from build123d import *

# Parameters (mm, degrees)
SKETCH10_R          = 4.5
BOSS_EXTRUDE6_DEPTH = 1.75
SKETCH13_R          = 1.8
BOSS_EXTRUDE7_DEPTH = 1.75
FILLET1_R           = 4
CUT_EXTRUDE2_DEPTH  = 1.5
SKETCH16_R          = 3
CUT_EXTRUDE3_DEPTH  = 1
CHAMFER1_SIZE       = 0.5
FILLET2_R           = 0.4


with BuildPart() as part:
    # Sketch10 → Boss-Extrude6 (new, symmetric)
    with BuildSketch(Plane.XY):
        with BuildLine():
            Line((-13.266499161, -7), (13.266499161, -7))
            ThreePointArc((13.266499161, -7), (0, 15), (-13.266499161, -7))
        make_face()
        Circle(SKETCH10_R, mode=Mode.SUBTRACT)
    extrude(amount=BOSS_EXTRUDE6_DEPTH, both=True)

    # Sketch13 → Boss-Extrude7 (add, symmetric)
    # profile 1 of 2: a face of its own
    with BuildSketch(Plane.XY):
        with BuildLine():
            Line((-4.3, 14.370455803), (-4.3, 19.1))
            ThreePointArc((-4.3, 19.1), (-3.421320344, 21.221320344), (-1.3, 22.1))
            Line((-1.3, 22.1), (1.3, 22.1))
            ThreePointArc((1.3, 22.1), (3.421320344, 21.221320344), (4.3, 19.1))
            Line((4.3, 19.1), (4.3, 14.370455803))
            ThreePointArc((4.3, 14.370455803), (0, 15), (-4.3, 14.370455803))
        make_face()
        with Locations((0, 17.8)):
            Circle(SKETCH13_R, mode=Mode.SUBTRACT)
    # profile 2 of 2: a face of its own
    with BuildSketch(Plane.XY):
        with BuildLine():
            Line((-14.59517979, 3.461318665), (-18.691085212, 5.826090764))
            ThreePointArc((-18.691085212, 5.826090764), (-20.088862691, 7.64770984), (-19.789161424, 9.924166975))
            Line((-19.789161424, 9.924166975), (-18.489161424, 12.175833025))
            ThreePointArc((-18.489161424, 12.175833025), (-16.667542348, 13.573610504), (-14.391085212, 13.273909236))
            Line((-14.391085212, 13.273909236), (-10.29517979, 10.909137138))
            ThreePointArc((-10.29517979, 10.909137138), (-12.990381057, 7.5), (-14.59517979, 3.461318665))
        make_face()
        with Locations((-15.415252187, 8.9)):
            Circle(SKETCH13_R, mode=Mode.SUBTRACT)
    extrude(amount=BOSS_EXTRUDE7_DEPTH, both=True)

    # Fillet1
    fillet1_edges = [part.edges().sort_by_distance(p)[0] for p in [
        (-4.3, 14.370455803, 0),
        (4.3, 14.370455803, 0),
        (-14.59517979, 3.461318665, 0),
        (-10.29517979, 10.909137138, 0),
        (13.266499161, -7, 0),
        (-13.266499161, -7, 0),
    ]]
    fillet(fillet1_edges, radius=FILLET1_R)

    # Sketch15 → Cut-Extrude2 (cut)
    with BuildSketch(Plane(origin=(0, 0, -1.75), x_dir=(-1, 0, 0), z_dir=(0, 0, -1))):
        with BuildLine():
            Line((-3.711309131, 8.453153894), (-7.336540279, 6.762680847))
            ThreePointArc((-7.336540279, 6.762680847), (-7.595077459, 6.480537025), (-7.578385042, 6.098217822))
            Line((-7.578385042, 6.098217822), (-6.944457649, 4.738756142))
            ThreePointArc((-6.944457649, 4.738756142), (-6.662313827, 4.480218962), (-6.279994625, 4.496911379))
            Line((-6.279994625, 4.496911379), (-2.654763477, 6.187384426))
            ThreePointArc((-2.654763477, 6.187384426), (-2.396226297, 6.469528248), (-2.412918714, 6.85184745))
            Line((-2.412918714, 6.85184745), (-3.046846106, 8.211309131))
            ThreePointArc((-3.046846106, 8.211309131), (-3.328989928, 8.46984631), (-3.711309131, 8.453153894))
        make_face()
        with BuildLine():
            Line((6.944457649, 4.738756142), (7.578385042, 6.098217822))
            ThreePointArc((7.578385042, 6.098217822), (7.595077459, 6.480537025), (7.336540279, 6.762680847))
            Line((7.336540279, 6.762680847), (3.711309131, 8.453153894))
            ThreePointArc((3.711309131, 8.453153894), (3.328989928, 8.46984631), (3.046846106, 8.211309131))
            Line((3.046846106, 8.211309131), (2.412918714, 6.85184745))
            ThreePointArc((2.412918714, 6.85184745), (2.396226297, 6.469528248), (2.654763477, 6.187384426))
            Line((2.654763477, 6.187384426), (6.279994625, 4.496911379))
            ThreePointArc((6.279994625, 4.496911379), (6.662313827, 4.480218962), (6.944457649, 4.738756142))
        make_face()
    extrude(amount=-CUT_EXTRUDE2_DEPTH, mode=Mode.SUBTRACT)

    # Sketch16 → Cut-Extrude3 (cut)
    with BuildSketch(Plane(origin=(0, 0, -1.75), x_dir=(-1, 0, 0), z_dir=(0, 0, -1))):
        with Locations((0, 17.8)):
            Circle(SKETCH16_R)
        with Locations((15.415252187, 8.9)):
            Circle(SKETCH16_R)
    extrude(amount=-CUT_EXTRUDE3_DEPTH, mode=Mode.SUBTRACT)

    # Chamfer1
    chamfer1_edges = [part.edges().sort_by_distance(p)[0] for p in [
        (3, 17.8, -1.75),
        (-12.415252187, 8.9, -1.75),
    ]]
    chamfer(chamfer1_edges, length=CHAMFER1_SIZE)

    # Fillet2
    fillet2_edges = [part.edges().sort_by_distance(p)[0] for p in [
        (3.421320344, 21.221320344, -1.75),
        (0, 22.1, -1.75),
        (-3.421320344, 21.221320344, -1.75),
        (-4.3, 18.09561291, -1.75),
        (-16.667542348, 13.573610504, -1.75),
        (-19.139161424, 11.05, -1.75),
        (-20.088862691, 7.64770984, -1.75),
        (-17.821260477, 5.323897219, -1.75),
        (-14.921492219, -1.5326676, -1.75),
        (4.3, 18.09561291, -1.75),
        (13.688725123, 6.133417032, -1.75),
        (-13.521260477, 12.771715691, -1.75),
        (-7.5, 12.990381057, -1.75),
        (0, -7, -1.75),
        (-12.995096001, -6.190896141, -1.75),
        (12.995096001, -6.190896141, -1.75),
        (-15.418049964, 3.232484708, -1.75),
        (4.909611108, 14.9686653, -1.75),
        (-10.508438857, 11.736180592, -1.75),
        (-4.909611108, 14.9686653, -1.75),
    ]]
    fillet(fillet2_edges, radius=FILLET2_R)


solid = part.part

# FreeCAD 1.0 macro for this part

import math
import FreeCAD as App
import Part
import Sketcher
Q = App.Units.Quantity


def edges_at(feature, points):
    """Names of the edges that pass closest to the given points."""
    edges = feature.Shape.Edges
    near = lambda p: min(range(len(edges)), key=lambda i: edges[i].distToShape(Part.Vertex(*p))[0])
    return sorted({f"Edge{near(p) + 1}" for p in points})

doc = App.newDocument("Part")
params = doc.addObject("Spreadsheet::Sheet", "Params")
for row, (alias, value) in enumerate([
    ("sketch1_diameter", "9 mm"),
    ("sketch1_radius", "15 mm"),
    ("pad1_length", "3.5 mm"),
    ("sketch2_radius", "15 mm"),
    ("sketch2_radius2", "3 mm"),
    ("sketch2_diameter", "3.6 mm"),
    ("sketch2_width", "2.6 mm"),
    ("sketch2_length", "2.6 mm"),
    ("pad2_length", "3.5 mm"),
    ("fillet_radius", "4 mm"),
    ("sketch3_radius", "0.5 mm"),
    ("sketch3_length", "4 mm"),
    ("sketch3_length2", "1.5 mm"),
    ("pocket1_length", "1.5 mm"),
    ("sketch4_diameter", "6 mm"),
    ("pocket2_length", "1 mm"),
    ("chamfer_size", "0.5 mm"),
    ("fillet2_radius", "0.4 mm"),
], start=1):
    params.set(f"A{row}", alias)
    params.set(f"B{row}", "=" + value)
    params.setAlias(f"B{row}", alias)

body = doc.addObject("PartDesign::Body", "Body")

sketch1 = body.newObject("Sketcher::SketchObject", "Sketch")
sketch1.AttachmentSupport = (doc.getObject("XY_Plane"), [""])
sketch1.MapMode = "FlatFace"
sketch1.addGeometry([
    Part.LineSegment(App.Vector(-13.3, -7, 0), App.Vector(13.3, -7, 0)),
    Part.ArcOfCircle(Part.Circle(App.Vector(0, 0, 0), App.Vector(0, 0, 1), 15), math.radians(-28), math.radians(208)),
    Part.Circle(App.Vector(0, 0, 0), App.Vector(0, 0, 1), 4.5),
], False)
sketch1.addConstraint([
    Sketcher.Constraint("Coincident", 0, 1, 1, 2),
    Sketcher.Constraint("Coincident", 1, 1, 0, 2),
    Sketcher.Constraint("Horizontal", 0),
    Sketcher.Constraint("Coincident", 1, 3, -1, 1),
    Sketcher.Constraint("Coincident", 2, 3, -1, 1),
    Sketcher.Constraint("Diameter", 2, Q("9 mm")),
    Sketcher.Constraint("Radius", 1, Q("15 mm")),
    Sketcher.Constraint("DistanceY", 0, 1, -1, 1, Q("7 mm")),
])
sketch1.setExpression("Constraints[5]", "Params.sketch1_diameter")
sketch1.setExpression("Constraints[6]", "Params.sketch1_radius")
pad1 = body.newObject("PartDesign::Pad", "Pad")
pad1.Profile = sketch1
pad1.setExpression("Length", "Params.pad1_length")
pad1.Midplane = True

sketch2 = body.newObject("Sketcher::SketchObject", "Sketch001")
sketch2.AttachmentSupport = (doc.getObject("XY_Plane"), [""])
sketch2.MapMode = "FlatFace"
sketch2.addGeometry([
    Part.LineSegment(App.Vector(-4.3, 19.1, 0), App.Vector(-4.3, 14.4, 0)),
    Part.ArcOfCircle(Part.Circle(App.Vector(0, 0, 0), App.Vector(0, 0, 1), 15), math.radians(73), math.radians(107)),
    Part.LineSegment(App.Vector(4.3, 14.4, 0), App.Vector(4.3, 19.1, 0)),
    Part.ArcOfCircle(Part.Circle(App.Vector(1.3, 19.1, 0), App.Vector(0, 0, 1), 3), math.radians(0), math.radians(90)),
    Part.LineSegment(App.Vector(1.3, 22.1, 0), App.Vector(-1.3, 22.1, 0)),
    Part.ArcOfCircle(Part.Circle(App.Vector(-1.3, 19.1, 0), App.Vector(0, 0, 1), 3), math.radians(90), math.radians(180)),
    Part.Circle(App.Vector(0, 17.8, 0), App.Vector(0, 0, 1), 1.8),
    Part.LineSegment(App.Vector(-18.7, 5.8, 0), App.Vector(-14.6, 3.5, 0)),
    Part.ArcOfCircle(Part.Circle(App.Vector(0, 0, 0), App.Vector(0, 0, 1), 15), math.radians(133), math.radians(167)),
    Part.LineSegment(App.Vector(-10.3, 10.9, 0), App.Vector(-14.4, 13.3, 0)),
    Part.ArcOfCircle(Part.Circle(App.Vector(-15.9, 10.7, 0), App.Vector(0, 0, 1), 3), math.radians(60), math.radians(150)),
    Part.LineSegment(App.Vector(-18.5, 12.2, 0), App.Vector(-19.8, 9.9, 0)),
    Part.ArcOfCircle(Part.Circle(App.Vector(-17.2, 8.4, 0), App.Vector(0, 0, 1), 3), math.radians(150), math.radians(240)),
    Part.Circle(App.Vector(-15.4, 8.9, 0), App.Vector(0, 0, 1), 1.8),
], False)
sketch2.addConstraint([
    Sketcher.Constraint("Coincident", 0, 2, 1, 2),
    Sketcher.Constraint("Coincident", 1, 1, 2, 1),
    Sketcher.Constraint("Tangent", 2, 2, 3, 1),
    Sketcher.Constraint("Tangent", 3, 2, 4, 1),
    Sketcher.Constraint("Tangent", 4, 2, 5, 1),
    Sketcher.Constraint("Tangent", 5, 2, 0, 1),
    Sketcher.Constraint("Coincident", 7, 2, 8, 2),
    Sketcher.Constraint("Coincident", 8, 1, 9, 1),
    Sketcher.Constraint("Tangent", 9, 2, 10, 1),
    Sketcher.Constraint("Tangent", 10, 2, 11, 1),
    Sketcher.Constraint("Tangent", 11, 2, 12, 1),
    Sketcher.Constraint("Tangent", 12, 2, 7, 1),
    Sketcher.Constraint("Vertical", 0),
    Sketcher.Constraint("Vertical", 2),
    Sketcher.Constraint("Horizontal", 4),
    Sketcher.Constraint("Coincident", 1, 3, -1, 1),
    Sketcher.Constraint("Coincident", 8, 3, -1, 1),
    Sketcher.Constraint("Equal", 3, 5),
    Sketcher.Constraint("Equal", 1, 8),
    Sketcher.Constraint("Equal", 5, 10),
    Sketcher.Constraint("Equal", 10, 12),
    Sketcher.Constraint("Equal", 6, 13),
    Sketcher.Constraint("PointOnObject", 6, 3, -2),
    Sketcher.Constraint("Parallel", 7, 9),
    Sketcher.Constraint("Perpendicular", 9, 11),
    Sketcher.Constraint("Horizontal", 0, 2, 1, 1),
    Sketcher.Constraint("Equal", 7, 9),
    Sketcher.Constraint("Radius", 1, Q("15 mm")),
    Sketcher.Constraint("Radius", 3, Q("3 mm")),
    Sketcher.Constraint("Diameter", 6, Q("3.6 mm")),
    Sketcher.Constraint("Angle", 7, Q("-30 deg")),
    Sketcher.Constraint("DistanceX", 4, 2, 4, 1, Q("2.6 mm")),
    Sketcher.Constraint("Distance", 11, Q("2.6 mm")),
    Sketcher.Constraint("DistanceY", -1, 1, 3, 3, Q("19.1 mm")),
    Sketcher.Constraint("DistanceY", -1, 1, 6, 3, Q("17.8 mm")),
    Sketcher.Constraint("DistanceY", -1, 1, 13, 3, Q("8.9 mm")),
    Sketcher.Constraint("DistanceY", -1, 1, 9, 2, Q("13.273909 mm")),
    Sketcher.Constraint("DistanceX", 10, 2, 13, 3, Q("3.073909 mm")),
])
sketch2.setExpression("Constraints[27]", "Params.sketch2_radius")
sketch2.setExpression("Constraints[28]", "Params.sketch2_radius2")
sketch2.setExpression("Constraints[29]", "Params.sketch2_diameter")
sketch2.setExpression("Constraints[31]", "Params.sketch2_width")
sketch2.setExpression("Constraints[32]", "Params.sketch2_length")
pad2 = body.newObject("PartDesign::Pad", "Pad001")
pad2.Profile = sketch2
pad2.setExpression("Length", "Params.pad2_length")
pad2.Midplane = True
doc.recompute()

fillet = body.newObject("PartDesign::Fillet", "Fillet")
fillet.Base = (pad2, edges_at(pad2, [
    (-4.3, 14.37, 0),
    (4.3, 14.37, 0),
    (-14.595, 3.461, 0),
    (-10.295, 10.909, 0),
    (13.266, -7, 0),
    (-13.266, -7, 0),
]))
fillet.setExpression("Radius", "Params.fillet_radius")

sketch3 = body.newObject("Sketcher::SketchObject", "Sketch002")
sketch3.AttachmentSupport = (doc.getObject("XY_Plane"), [""])
sketch3.MapMode = "FlatFace"
sketch3.AttachmentOffset = App.Placement(App.Vector(0, 0, -1.75), App.Rotation())
sketch3.addGeometry([
    Part.LineSegment(App.Vector(3.71, 8.45, 0), App.Vector(7.34, 6.76, 0)),
    Part.ArcOfCircle(Part.Circle(App.Vector(7.13, 6.31, 0), App.Vector(0, 0, 1), 0.5), math.radians(-25), math.radians(65)),
    Part.LineSegment(App.Vector(7.58, 6.1, 0), App.Vector(6.94, 4.74, 0)),
    Part.ArcOfCircle(Part.Circle(App.Vector(6.49, 4.95, 0), App.Vector(0, 0, 1), 0.5), math.radians(-115), math.radians(-25)),
    Part.LineSegment(App.Vector(6.28, 4.5, 0), App.Vector(2.65, 6.19, 0)),
    Part.ArcOfCircle(Part.Circle(App.Vector(2.87, 6.64, 0), App.Vector(0, 0, 1), 0.5), math.radians(155), math.radians(245)),
    Part.LineSegment(App.Vector(2.41, 6.85, 0), App.Vector(3.05, 8.21, 0)),
    Part.ArcOfCircle(Part.Circle(App.Vector(3.5, 8, 0), App.Vector(0, 0, 1), 0.5), math.radians(65), math.radians(155)),
    Part.LineSegment(App.Vector(-6.94, 4.74, 0), App.Vector(-7.58, 6.1, 0)),
    Part.ArcOfCircle(Part.Circle(App.Vector(-7.13, 6.31, 0), App.Vector(0, 0, 1), 0.5), math.radians(115), math.radians(205)),
    Part.LineSegment(App.Vector(-7.34, 6.76, 0), App.Vector(-3.71, 8.45, 0)),
    Part.ArcOfCircle(Part.Circle(App.Vector(-3.5, 8, 0), App.Vector(0, 0, 1), 0.5), math.radians(25), math.radians(115)),
    Part.LineSegment(App.Vector(-3.05, 8.21, 0), App.Vector(-2.41, 6.85, 0)),
    Part.ArcOfCircle(Part.Circle(App.Vector(-2.87, 6.64, 0), App.Vector(0, 0, 1), 0.5), math.radians(-65), math.radians(25)),
    Part.LineSegment(App.Vector(-2.65, 6.19, 0), App.Vector(-6.28, 4.5, 0)),
    Part.ArcOfCircle(Part.Circle(App.Vector(-6.49, 4.95, 0), App.Vector(0, 0, 1), 0.5), math.radians(-155), math.radians(-65)),
], False)
sketch3.addConstraint([
    Sketcher.Constraint("Tangent", 0, 2, 1, 2),
    Sketcher.Constraint("Tangent", 1, 1, 2, 1),
    Sketcher.Constraint("Tangent", 2, 2, 3, 2),
    Sketcher.Constraint("Tangent", 3, 1, 4, 1),
    Sketcher.Constraint("Tangent", 4, 2, 5, 2),
    Sketcher.Constraint("Tangent", 5, 1, 6, 1),
    Sketcher.Constraint("Tangent", 6, 2, 7, 2),
    Sketcher.Constraint("Tangent", 7, 1, 0, 1),
    Sketcher.Constraint("Tangent", 8, 2, 9, 2),
    Sketcher.Constraint("Tangent", 9, 1, 10, 1),
    Sketcher.Constraint("Tangent", 10, 2, 11, 2),
    Sketcher.Constraint("Tangent", 11, 1, 12, 1),
    Sketcher.Constraint("Tangent", 12, 2, 13, 2),
    Sketcher.Constraint("Tangent", 13, 1, 14, 1),
    Sketcher.Constraint("Tangent", 14, 2, 15, 2),
    Sketcher.Constraint("Tangent", 15, 1, 8, 1),
    Sketcher.Constraint("Equal", 1, 3),
    Sketcher.Constraint("Equal", 3, 5),
    Sketcher.Constraint("Equal", 5, 7),
    Sketcher.Constraint("Equal", 7, 9),
    Sketcher.Constraint("Equal", 9, 11),
    Sketcher.Constraint("Equal", 11, 13),
    Sketcher.Constraint("Equal", 13, 15),
    Sketcher.Constraint("Symmetric", 1, 3, 9, 3, -2),
    Sketcher.Constraint("Symmetric", 7, 3, 11, 3, -2),
    Sketcher.Constraint("Symmetric", 5, 3, 13, 3, -2),
    Sketcher.Constraint("Symmetric", 3, 3, 15, 3, -2),
    Sketcher.Constraint("Perpendicular", 0, 2),
    Sketcher.Constraint("Perpendicular", 2, 4),
    Sketcher.Constraint("Perpendicular", 4, 6),
    Sketcher.Constraint("Radius", 1, Q("0.5 mm")),
    Sketcher.Constraint("Angle", 0, Q("-25 deg")),
    Sketcher.Constraint("Distance", 0, Q("4 mm")),
    Sketcher.Constraint("DistanceY", -1, 1, 7, 3, Q("8 mm")),
    Sketcher.Constraint("DistanceX", 11, 3, 7, 3, Q("7 mm")),
    Sketcher.Constraint("Distance", 2, Q("1.5 mm")),
])
sketch3.setExpression("Constraints[30]", "Params.sketch3_radius")
sketch3.setExpression("Constraints[32]", "Params.sketch3_length")
sketch3.setExpression("Constraints[35]", "Params.sketch3_length2")
pocket1 = body.newObject("PartDesign::Pocket", "Pocket")
pocket1.Profile = sketch3
pocket1.setExpression("Length", "Params.pocket1_length")
pocket1.Reversed = True

sketch4 = body.newObject("Sketcher::SketchObject", "Sketch003")
sketch4.AttachmentSupport = (doc.getObject("XY_Plane"), [""])
sketch4.MapMode = "FlatFace"
sketch4.AttachmentOffset = App.Placement(App.Vector(0, 0, -1.75), App.Rotation())
sketch4.addGeometry([
    Part.Circle(App.Vector(0, 17.8, 0), App.Vector(0, 0, 1), 3),
    Part.Circle(App.Vector(-15.4, 8.9, 0), App.Vector(0, 0, 1), 3),
], False)
sketch4.addConstraint([
    Sketcher.Constraint("Equal", 0, 1),
    Sketcher.Constraint("PointOnObject", 0, 3, -2),
    Sketcher.Constraint("Diameter", 0, Q("6 mm")),
    Sketcher.Constraint("DistanceY", -1, 1, 0, 3, Q("17.8 mm")),
    Sketcher.Constraint("DistanceY", -1, 1, 1, 3, Q("8.9 mm")),
    Sketcher.Constraint("DistanceX", 1, 3, -1, 1, Q("15.415252 mm")),
])
sketch4.setExpression("Constraints[2]", "Params.sketch4_diameter")
pocket2 = body.newObject("PartDesign::Pocket", "Pocket001")
pocket2.Profile = sketch4
pocket2.setExpression("Length", "Params.pocket2_length")
pocket2.Reversed = True
doc.recompute()

chamfer = body.newObject("PartDesign::Chamfer", "Chamfer")
chamfer.Base = (pocket2, edges_at(pocket2, [(3, 17.8, -1.75), (-12.415, 8.9, -1.75)]))
chamfer.setExpression("Size", "Params.chamfer_size")
doc.recompute()

fillet2 = body.newObject("PartDesign::Fillet", "Fillet001")
fillet2.Base = (chamfer, edges_at(chamfer, [
    (3.421, 21.221, -1.75),
    (0, 22.1, -1.75),
    (-3.421, 21.221, -1.75),
    (-4.3, 18.096, -1.75),
    (-16.668, 13.574, -1.75),
    (-19.139, 11.05, -1.75),
    (-20.089, 7.648, -1.75),
    (-17.821, 5.324, -1.75),
    (-14.921, -1.533, -1.75),
    (4.3, 18.096, -1.75),
    (13.689, 6.133, -1.75),
    (-13.521, 12.772, -1.75),
    (-7.5, 12.99, -1.75),
    (0, -7, -1.75),
    (-12.995, -6.191, -1.75),
    (12.995, -6.191, -1.75),
    (-15.418, 3.232, -1.75),
    (4.91, 14.969, -1.75),
    (-10.508, 11.736, -1.75),
    (-4.91, 14.969, -1.75),
]))
fillet2.setExpression("Radius", "Params.fillet2_radius")

doc.recompute()
